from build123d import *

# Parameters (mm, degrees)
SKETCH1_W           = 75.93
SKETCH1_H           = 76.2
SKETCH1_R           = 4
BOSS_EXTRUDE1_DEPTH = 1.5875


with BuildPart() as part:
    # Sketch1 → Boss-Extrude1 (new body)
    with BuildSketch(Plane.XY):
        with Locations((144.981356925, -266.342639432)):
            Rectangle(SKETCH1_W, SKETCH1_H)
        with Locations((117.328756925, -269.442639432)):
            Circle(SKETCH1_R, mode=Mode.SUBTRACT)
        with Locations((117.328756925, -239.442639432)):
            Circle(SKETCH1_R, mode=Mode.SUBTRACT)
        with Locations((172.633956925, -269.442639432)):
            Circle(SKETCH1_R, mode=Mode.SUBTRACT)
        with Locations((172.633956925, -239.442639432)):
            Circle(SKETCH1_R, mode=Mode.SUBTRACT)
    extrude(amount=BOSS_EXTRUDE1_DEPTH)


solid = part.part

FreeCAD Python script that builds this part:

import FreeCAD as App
import Part
import Sketcher
Q = App.Units.Quantity

doc = App.newDocument("Part")
params = doc.addObject("Spreadsheet::Sheet", "Params")
for row, (alias, value) in enumerate([
    ("sketch1_height", "3 in"),
    ("pad1_length", "0.0625 in"),
], start=1):
    params.set(f"A{row}", alias)
    params.set(f"B{row}", "=" + value)
    params.setAlias(f"B{row}", alias)

body = doc.addObject("PartDesign::Body", "Body")

# Sketch on XY plane
sketch1 = doc.addObject("Sketcher::SketchObject", "Sketch")
body.addObject(sketch1)
sketch1.AttachmentSupport = (doc.XY_Plane, [""])
sketch1.MapMode = "FlatFace"
sketch1.addGeometry([
    Part.LineSegment(App.Vector(107.016357, -228.242639, 0), App.Vector(107.016357, -304.442639, 0)),  # 0
    Part.LineSegment(App.Vector(107.016357, -304.442639, 0), App.Vector(182.946357, -304.442639, 0)),  # 1
    Part.LineSegment(App.Vector(182.946357, -304.442639, 0), App.Vector(182.946357, -228.242639, 0)),  # 2
    Part.LineSegment(App.Vector(182.946357, -228.242639, 0), App.Vector(107.016357, -228.242639, 0)),  # 3
    Part.Circle(App.Vector(117.328757, -269.442639, 0), App.Vector(0, 0, 1), 4),  # 4
    Part.Circle(App.Vector(172.633957, -269.442639, 0), App.Vector(0, 0, 1), 4),  # 5
    Part.Circle(App.Vector(117.328757, -239.442639, 0), App.Vector(0, 0, 1), 4),  # 6
    Part.Circle(App.Vector(172.633957, -239.442639, 0), App.Vector(0, 0, 1), 4),  # 7
], False)
sketch1.addConstraint([
    Sketcher.Constraint("Coincident", 0, 2, 1, 1),
    Sketcher.Constraint("Coincident", 1, 2, 2, 1),
    Sketcher.Constraint("Coincident", 2, 2, 3, 1),
    Sketcher.Constraint("Coincident", 3, 2, 0, 1),
    Sketcher.Constraint("Vertical", 0),
    Sketcher.Constraint("Horizontal", 1),
    Sketcher.Constraint("Vertical", 2),
    Sketcher.Constraint("Horizontal", 3),
    Sketcher.Constraint("Equal", 4, 5),
    Sketcher.Constraint("Equal", 5, 6),
    Sketcher.Constraint("Equal", 6, 7),
    Sketcher.Constraint("Horizontal", 4, 3, 5, 3),
    Sketcher.Constraint("Horizontal", 6, 3, 7, 3),
    Sketcher.Constraint("Vertical", 4, 3, 6, 3),
    Sketcher.Constraint("Vertical", 5, 3, 7, 3),
    Sketcher.Constraint("DistanceY", 0, 2, 0, 1, Q("3 in")),
    Sketcher.Constraint("Diameter", 4, 8.0),
    Sketcher.Constraint("DistanceX", 0, 2, 4, 3, Q("0.406 in")),
    Sketcher.Constraint("DistanceX", 5, 3, 1, 2, Q("0.406 in")),
    Sketcher.Constraint("DistanceX", 1, 1, 1, 2, 75.93),
    Sketcher.Constraint("DistanceY", 4, 3, 6, 3, 30.0),
    Sketcher.Constraint("DistanceY", 0, 2, 4, 3, 35.0),
    Sketcher.Constraint("DistanceY", 4, 3, -1, 1, 269.442639),
    Sketcher.Constraint("DistanceX", -1, 1, 4, 3, 117.328757),
])
sketch1.setExpression("Constraints[15]", "Params.sketch1_height")
pad1 = doc.addObject("PartDesign::Pad", "Pad")
body.addObject(pad1)
pad1.Profile = sketch1
pad1.setExpression("Length", "Params.pad1_length")

doc.recompute()
